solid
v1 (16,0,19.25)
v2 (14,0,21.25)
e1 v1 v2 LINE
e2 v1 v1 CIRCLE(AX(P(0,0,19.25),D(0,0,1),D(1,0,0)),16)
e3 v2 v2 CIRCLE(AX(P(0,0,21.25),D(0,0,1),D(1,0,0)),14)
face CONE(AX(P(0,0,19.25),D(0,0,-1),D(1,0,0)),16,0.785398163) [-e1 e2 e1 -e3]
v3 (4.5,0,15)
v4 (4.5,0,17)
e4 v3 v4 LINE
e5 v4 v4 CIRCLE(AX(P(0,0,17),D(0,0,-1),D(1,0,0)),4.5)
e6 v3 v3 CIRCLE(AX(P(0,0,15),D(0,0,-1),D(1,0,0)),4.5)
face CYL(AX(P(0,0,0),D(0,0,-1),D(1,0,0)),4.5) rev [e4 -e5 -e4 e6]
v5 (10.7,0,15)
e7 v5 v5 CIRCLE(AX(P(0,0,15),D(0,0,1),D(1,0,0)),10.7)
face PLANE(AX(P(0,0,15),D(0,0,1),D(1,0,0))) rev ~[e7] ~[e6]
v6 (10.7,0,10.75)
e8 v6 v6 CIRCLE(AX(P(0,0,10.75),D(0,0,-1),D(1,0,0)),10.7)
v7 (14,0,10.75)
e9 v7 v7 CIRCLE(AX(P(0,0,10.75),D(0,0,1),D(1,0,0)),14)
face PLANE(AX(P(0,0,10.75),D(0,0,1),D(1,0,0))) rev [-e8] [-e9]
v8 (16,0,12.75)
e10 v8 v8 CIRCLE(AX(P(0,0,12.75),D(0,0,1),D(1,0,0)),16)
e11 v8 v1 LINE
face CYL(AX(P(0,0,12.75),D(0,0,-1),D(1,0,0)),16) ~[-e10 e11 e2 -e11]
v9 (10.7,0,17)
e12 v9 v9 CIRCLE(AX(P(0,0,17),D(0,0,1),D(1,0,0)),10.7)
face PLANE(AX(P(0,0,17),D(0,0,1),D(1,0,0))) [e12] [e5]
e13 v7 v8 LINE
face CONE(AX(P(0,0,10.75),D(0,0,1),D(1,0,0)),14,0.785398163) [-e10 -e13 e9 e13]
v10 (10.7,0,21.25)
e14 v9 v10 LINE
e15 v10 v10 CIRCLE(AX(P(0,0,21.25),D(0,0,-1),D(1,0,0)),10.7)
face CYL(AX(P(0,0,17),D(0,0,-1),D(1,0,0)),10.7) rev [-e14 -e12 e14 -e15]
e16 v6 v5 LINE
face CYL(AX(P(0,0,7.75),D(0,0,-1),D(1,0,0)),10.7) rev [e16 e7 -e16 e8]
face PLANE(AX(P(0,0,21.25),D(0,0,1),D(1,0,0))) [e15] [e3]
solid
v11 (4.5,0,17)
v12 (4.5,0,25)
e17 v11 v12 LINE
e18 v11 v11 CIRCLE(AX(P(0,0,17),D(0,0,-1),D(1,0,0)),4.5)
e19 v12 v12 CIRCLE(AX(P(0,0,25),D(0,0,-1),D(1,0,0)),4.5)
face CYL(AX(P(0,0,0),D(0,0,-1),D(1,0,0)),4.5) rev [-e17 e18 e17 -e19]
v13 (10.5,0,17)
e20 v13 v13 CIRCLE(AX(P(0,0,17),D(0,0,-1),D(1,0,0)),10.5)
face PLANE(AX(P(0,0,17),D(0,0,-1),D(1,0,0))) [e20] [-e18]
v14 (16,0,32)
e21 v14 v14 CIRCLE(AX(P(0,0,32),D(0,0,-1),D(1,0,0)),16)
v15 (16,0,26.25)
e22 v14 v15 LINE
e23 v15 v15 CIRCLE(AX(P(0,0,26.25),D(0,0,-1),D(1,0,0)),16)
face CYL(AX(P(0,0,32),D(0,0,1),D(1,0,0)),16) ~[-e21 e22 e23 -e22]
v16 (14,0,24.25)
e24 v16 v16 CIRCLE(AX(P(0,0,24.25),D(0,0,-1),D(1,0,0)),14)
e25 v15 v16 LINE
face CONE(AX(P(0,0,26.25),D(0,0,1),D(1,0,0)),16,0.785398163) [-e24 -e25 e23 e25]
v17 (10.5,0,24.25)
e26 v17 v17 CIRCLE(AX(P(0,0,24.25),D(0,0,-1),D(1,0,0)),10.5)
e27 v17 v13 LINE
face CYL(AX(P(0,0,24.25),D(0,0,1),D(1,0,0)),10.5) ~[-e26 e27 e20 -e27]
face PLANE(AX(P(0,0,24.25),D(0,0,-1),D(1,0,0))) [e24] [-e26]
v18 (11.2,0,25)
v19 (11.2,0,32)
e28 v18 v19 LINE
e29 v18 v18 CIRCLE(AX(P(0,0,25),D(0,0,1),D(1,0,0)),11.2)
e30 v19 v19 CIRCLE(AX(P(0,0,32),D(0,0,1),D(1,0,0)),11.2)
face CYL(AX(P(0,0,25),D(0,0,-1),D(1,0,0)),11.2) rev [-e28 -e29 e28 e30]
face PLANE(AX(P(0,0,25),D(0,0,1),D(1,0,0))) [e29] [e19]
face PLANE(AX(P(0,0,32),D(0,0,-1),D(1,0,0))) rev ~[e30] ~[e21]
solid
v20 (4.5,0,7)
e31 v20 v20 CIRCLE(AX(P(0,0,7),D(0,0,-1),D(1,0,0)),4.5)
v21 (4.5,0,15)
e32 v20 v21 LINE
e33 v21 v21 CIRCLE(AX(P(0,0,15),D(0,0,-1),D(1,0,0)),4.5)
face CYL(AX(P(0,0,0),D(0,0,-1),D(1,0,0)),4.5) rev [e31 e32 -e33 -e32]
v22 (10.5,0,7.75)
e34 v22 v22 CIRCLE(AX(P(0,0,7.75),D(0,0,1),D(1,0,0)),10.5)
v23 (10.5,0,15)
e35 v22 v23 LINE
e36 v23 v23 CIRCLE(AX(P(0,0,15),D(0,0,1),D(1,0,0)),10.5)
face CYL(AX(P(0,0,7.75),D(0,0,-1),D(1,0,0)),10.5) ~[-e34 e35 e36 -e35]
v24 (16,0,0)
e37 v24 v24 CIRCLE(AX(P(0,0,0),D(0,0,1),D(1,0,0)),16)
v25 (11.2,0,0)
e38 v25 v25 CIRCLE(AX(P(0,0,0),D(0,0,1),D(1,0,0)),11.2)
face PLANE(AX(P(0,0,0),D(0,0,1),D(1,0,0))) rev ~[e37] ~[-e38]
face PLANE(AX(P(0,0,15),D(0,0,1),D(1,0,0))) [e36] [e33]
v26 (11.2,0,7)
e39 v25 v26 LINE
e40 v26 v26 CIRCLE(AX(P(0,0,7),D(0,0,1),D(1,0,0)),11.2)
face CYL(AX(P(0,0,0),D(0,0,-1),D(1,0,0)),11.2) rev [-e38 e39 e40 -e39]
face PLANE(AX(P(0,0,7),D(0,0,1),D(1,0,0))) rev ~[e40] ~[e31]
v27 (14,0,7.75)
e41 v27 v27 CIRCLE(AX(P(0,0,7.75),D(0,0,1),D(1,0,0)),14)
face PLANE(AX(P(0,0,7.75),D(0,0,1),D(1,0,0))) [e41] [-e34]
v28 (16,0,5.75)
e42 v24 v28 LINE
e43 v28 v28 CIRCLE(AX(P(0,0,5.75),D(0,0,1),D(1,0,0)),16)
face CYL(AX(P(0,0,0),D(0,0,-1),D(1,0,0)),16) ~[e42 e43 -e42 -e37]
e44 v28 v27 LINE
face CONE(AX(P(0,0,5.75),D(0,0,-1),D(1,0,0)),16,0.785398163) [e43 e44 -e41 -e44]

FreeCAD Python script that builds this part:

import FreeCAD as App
import Part
import Sketcher

V = App.Vector

doc = App.newDocument("Part")
params = doc.addObject("Spreadsheet::Sheet", "Params")
for row, (alias, value) in enumerate([
    ("sketch1_diameter", "21.4 mm"),
    ("pad1_length", "7.25 mm"),
    ("sketch2_diameter", "9 mm"),
    ("pad2_length", "32 mm"),
    ("sketch3_diameter", "21.4 mm"),
    ("pad3_length", "7.25 mm"),
    ("sketch4_width", "16 mm"),
    ("sketch4_width2", "14 mm"),
    ("sketch4_height", "2 mm"),
    ("revolution_angle", "360 deg"),
    ("sketch5_width", "14 mm"),
    ("sketch5_width2", "16 mm"),
    ("sketch5_height", "2 mm"),
    ("revolution2_angle", "360 deg"),
    ("sketch6_diameter", "32 mm"),
    ("pad4_length", "6.5 mm"),
    ("sketch7_diameter", "22.4 mm"),
    ("pad5_length", "7 mm"),
    ("sketch8_diameter", "9 mm"),
    ("pad6_length", "32 mm"),
    ("sketch9_width", "16 mm"),
    ("sketch9_width2", "14 mm"),
    ("sketch9_height", "2 mm"),
    ("revolution3_angle", "360 deg"),
    ("sketch10_diameter", "21 mm"),
    ("pad7_length", "7.25 mm"),
    ("sketch11_diameter", "32 mm"),
    ("pad8_length", "5.75 mm"),
    ("sketch12_diameter", "22.4 mm"),
    ("pad9_length", "7 mm"),
    ("sketch13_diameter", "9 mm"),
    ("pad10_length", "32 mm"),
    ("sketch14_width", "16 mm"),
    ("sketch14_width2", "14 mm"),
    ("sketch14_height", "2 mm"),
    ("revolution4_angle", "360 deg"),
    ("sketch15_diameter", "21 mm"),
    ("pad11_length", "7.25 mm"),
    ("sketch16_diameter", "32 mm"),
    ("pad12_length", "5.75 mm"),
], start=1):
    params.set(f"A{row}", alias)
    params.set(f"B{row}", "=" + value)
    params.setAlias(f"B{row}", alias)

body = doc.addObject("PartDesign::Body", "Body")

# Sketch on XY plane
sketch1 = body.newObject("Sketcher::SketchObject", "Sketch")
sketch1.AttachmentSupport = (doc.getObject("XY_Plane"), [""])
sketch1.MapMode = "FlatFace"
sketch1.AttachmentOffset = App.Placement(V(0, 0, 7.75), App.Rotation())
sketch1.addGeometry(Part.Circle(V(0, 0, 0), V(0, 0, 1), 11), False)
sketch1.addConstraint([
    Sketcher.Constraint("Coincident", 0, 3, -1, 1),
    Sketcher.Constraint("Diameter", 0, 21.4),
])
sketch1.setExpression("Constraints[1]", "Params.sketch1_diameter")
pad1 = body.newObject("PartDesign::Pad", "Pad")
pad1.Profile = sketch1
pad1.setExpression("Length", "Params.pad1_length")
body2 = doc.addObject("PartDesign::Body", "Body001")

# Sketch on XY plane
sketch2 = body2.newObject("Sketcher::SketchObject", "Sketch001")
sketch2.AttachmentSupport = (doc.getObject("XY_Plane001"), [""])
sketch2.MapMode = "FlatFace"
sketch2.addGeometry(Part.Circle(V(0, 0, 0), V(0, 0, 1), 4.5), False)
sketch2.addConstraint([
    Sketcher.Constraint("Coincident", 0, 3, -1, 1),
    Sketcher.Constraint("Diameter", 0, 9.0),
])
sketch2.setExpression("Constraints[1]", "Params.sketch2_diameter")
pad2 = body2.newObject("PartDesign::Pad", "Pad001")
pad2.Profile = sketch2
pad2.setExpression("Length", "Params.pad2_length")
body3 = doc.addObject("PartDesign::Body", "Body002")
body3.AllowCompound = True

# Sketch on XY plane
sketch3 = body3.newObject("Sketcher::SketchObject", "Sketch002")
sketch3.AttachmentSupport = (doc.getObject("XY_Plane002"), [""])
sketch3.MapMode = "FlatFace"
sketch3.AttachmentOffset = App.Placement(V(0, 0, 17), App.Rotation())
sketch3.addGeometry(Part.Circle(V(0, 0, 0), V(0, 0, 1), 11), False)
sketch3.addConstraint([
    Sketcher.Constraint("Coincident", 0, 3, -1, 1),
    Sketcher.Constraint("Diameter", 0, 21.4),
])
sketch3.setExpression("Constraints[1]", "Params.sketch3_diameter")
pad3 = body3.newObject("PartDesign::Pad", "Pad002")
pad3.Profile = sketch3
pad3.setExpression("Length", "Params.pad3_length")
doc.recompute()

boolean = body3.newObject("PartDesign::Boolean", "Boolean")
boolean.Type = "Fuse"
boolean.addObjects([body])
doc.recompute()

boolean2 = body3.newObject("PartDesign::Boolean", "Boolean001")
boolean2.Type = "Fuse"
boolean2.addObjects([body2])
body4 = doc.addObject("PartDesign::Body", "Body003")

# Sketch on XZ plane
sketch4 = body4.newObject("Sketcher::SketchObject", "Sketch003")
sketch4.AttachmentSupport = (doc.getObject("XZ_Plane003"), [""])
sketch4.MapMode = "FlatFace"
sketch4.addGeometry([
    Part.LineSegment(V(0, 8.5, 0), V(16, 8.5, 0)),
    Part.LineSegment(V(16, 8.5, 0), V(14, 10.5, 0)),
    Part.LineSegment(V(14, 10.5, 0), V(0, 10.5, 0)),
    Part.LineSegment(V(0, 10.5, 0), V(0, 8.5, 0)),
], False)
sketch4.addConstraint([
    Sketcher.Constraint("Coincident", 0, 2, 1, 1),
    Sketcher.Constraint("Coincident", 1, 2, 2, 1),
    Sketcher.Constraint("Coincident", 2, 2, 3, 1),
    Sketcher.Constraint("Coincident", 3, 2, 0, 1),
    Sketcher.Constraint("Horizontal", 0),
    Sketcher.Constraint("Horizontal", 2),
    Sketcher.Constraint("Vertical", 3),
    Sketcher.Constraint("PointOnObject", 2, 2, -2),
    Sketcher.Constraint("DistanceX", 0, 1, 0, 2, 16.0),
    Sketcher.Constraint("DistanceX", 2, 2, 2, 1, 14.0),
    Sketcher.Constraint("DistanceY", 3, 2, 3, 1, 2.0),
    Sketcher.Constraint("DistanceY", -1, 1, 0, 2, 8.5),
])
sketch4.setExpression("Constraints[8]", "Params.sketch4_width")
sketch4.setExpression("Constraints[9]", "Params.sketch4_width2")
sketch4.setExpression("Constraints[10]", "Params.sketch4_height")
revolution = body4.newObject("PartDesign::Revolution", "Revolution")
revolution.Profile = sketch4
revolution.ReferenceAxis = (sketch4, ["V_Axis"])
revolution.setExpression("Angle", "Params.revolution_angle")
body5 = doc.addObject("PartDesign::Body", "Body004")

# Sketch on XZ plane
sketch5 = body5.newObject("Sketcher::SketchObject", "Sketch004")
sketch5.AttachmentSupport = (doc.getObject("XZ_Plane004"), [""])
sketch5.MapMode = "FlatFace"
sketch5.addGeometry([
    Part.LineSegment(V(0, 0, 0), V(14, 0, 0)),
    Part.LineSegment(V(14, 0, 0), V(16, 2, 0)),
    Part.LineSegment(V(16, 2, 0), V(0, 2, 0)),
    Part.LineSegment(V(0, 2, 0), V(0, 0, 0)),
], False)
sketch5.addConstraint([
    Sketcher.Constraint("Coincident", 0, 2, 1, 1),
    Sketcher.Constraint("Coincident", 1, 2, 2, 1),
    Sketcher.Constraint("Coincident", 2, 2, 3, 1),
    Sketcher.Constraint("Coincident", 3, 2, 0, 1),
    Sketcher.Constraint("Horizontal", 0),
    Sketcher.Constraint("Horizontal", 2),
    Sketcher.Constraint("Vertical", 3),
    Sketcher.Constraint("Coincident", 3, 2, -1, 1),
    Sketcher.Constraint("DistanceX", 0, 1, 0, 2, 14.0),
    Sketcher.Constraint("DistanceX", 2, 2, 2, 1, 16.0),
    Sketcher.Constraint("DistanceY", 3, 2, 3, 1, 2.0),
])
sketch5.setExpression("Constraints[8]", "Params.sketch5_width")
sketch5.setExpression("Constraints[9]", "Params.sketch5_width2")
sketch5.setExpression("Constraints[10]", "Params.sketch5_height")
revolution2 = body5.newObject("PartDesign::Revolution", "Revolution001")
revolution2.Profile = sketch5
revolution2.ReferenceAxis = (sketch5, ["V_Axis"])
revolution2.setExpression("Angle", "Params.revolution2_angle")
body6 = doc.addObject("PartDesign::Body", "Body005")

# Sketch on XY plane
sketch6 = body6.newObject("Sketcher::SketchObject", "Sketch005")
sketch6.AttachmentSupport = (doc.getObject("XY_Plane005"), [""])
sketch6.MapMode = "FlatFace"
sketch6.AttachmentOffset = App.Placement(V(0, 0, 2), App.Rotation())
sketch6.addGeometry(Part.Circle(V(0, 0, 0), V(0, 0, 1), 16), False)
sketch6.addConstraint([
    Sketcher.Constraint("Coincident", 0, 3, -1, 1),
    Sketcher.Constraint("Diameter", 0, 32.0),
])
sketch6.setExpression("Constraints[1]", "Params.sketch6_diameter")
pad4 = body6.newObject("PartDesign::Pad", "Pad003")
pad4.Profile = sketch6
pad4.setExpression("Length", "Params.pad4_length")
doc.recompute()

boolean3 = body6.newObject("PartDesign::Boolean", "Boolean002")
boolean3.Type = "Fuse"
boolean3.addObjects([body4])
doc.recompute()

boolean4 = body6.newObject("PartDesign::Boolean", "Boolean003")
boolean4.Type = "Fuse"
boolean4.addObjects([body5])
body7 = doc.addObject("PartDesign::Body", "Body006")
doc.recompute()

body6.Placement = App.Placement(V(0, 0, 10.75), App.Rotation(V(0, 0, 1), 0))
boolean5 = body7.newObject("PartDesign::Boolean", "Boolean004")
boolean5.Type = "Fuse"
boolean5.addObjects([body6])
doc.recompute()

boolean6 = body7.newObject("PartDesign::Boolean", "Boolean005")
boolean6.Type = "Cut"
boolean6.addObjects([body3])
body8 = doc.addObject("PartDesign::Body", "Body007")

# Sketch on XY plane
sketch7 = body8.newObject("Sketcher::SketchObject", "Sketch006")
sketch7.AttachmentSupport = (doc.getObject("XY_Plane007"), [""])
sketch7.MapMode = "FlatFace"
sketch7.addGeometry(Part.Circle(V(0, 0, 0), V(0, 0, 1), 11), False)
sketch7.addConstraint([
    Sketcher.Constraint("Coincident", 0, 3, -1, 1),
    Sketcher.Constraint("Diameter", 0, 22.4),
])
sketch7.setExpression("Constraints[1]", "Params.sketch7_diameter")
pad5 = body8.newObject("PartDesign::Pad", "Pad004")
pad5.Profile = sketch7
pad5.setExpression("Length", "Params.pad5_length")
body9 = doc.addObject("PartDesign::Body", "Body008")

# Sketch on XY plane
sketch8 = body9.newObject("Sketcher::SketchObject", "Sketch007")
sketch8.AttachmentSupport = (doc.getObject("XY_Plane008"), [""])
sketch8.MapMode = "FlatFace"
sketch8.addGeometry(Part.Circle(V(0, 0, 0), V(0, 0, 1), 4.5), False)
sketch8.addConstraint([
    Sketcher.Constraint("Coincident", 0, 3, -1, 1),
    Sketcher.Constraint("Diameter", 0, 9.0),
])
sketch8.setExpression("Constraints[1]", "Params.sketch8_diameter")
pad6 = body9.newObject("PartDesign::Pad", "Pad005")
pad6.Profile = sketch8
pad6.setExpression("Length", "Params.pad6_length")
body10 = doc.addObject("PartDesign::Body", "Body009")

# Sketch on XZ plane
sketch9 = body10.newObject("Sketcher::SketchObject", "Sketch008")
sketch9.AttachmentSupport = (doc.getObject("XZ_Plane009"), [""])
sketch9.MapMode = "FlatFace"
sketch9.addGeometry([
    Part.LineSegment(V(0, 5.8, 0), V(16, 5.8, 0)),
    Part.LineSegment(V(16, 5.8, 0), V(14, 7.8, 0)),
    Part.LineSegment(V(14, 7.8, 0), V(0, 7.8, 0)),
    Part.LineSegment(V(0, 7.8, 0), V(0, 5.8, 0)),
], False)
sketch9.addConstraint([
    Sketcher.Constraint("Coincident", 0, 2, 1, 1),
    Sketcher.Constraint("Coincident", 1, 2, 2, 1),
    Sketcher.Constraint("Coincident", 2, 2, 3, 1),
    Sketcher.Constraint("Coincident", 3, 2, 0, 1),
    Sketcher.Constraint("Horizontal", 0),
    Sketcher.Constraint("Horizontal", 2),
    Sketcher.Constraint("Vertical", 3),
    Sketcher.Constraint("PointOnObject", 2, 2, -2),
    Sketcher.Constraint("DistanceX", 0, 1, 0, 2, 16.0),
    Sketcher.Constraint("DistanceX", 2, 2, 2, 1, 14.0),
    Sketcher.Constraint("DistanceY", 3, 2, 3, 1, 2.0),
    Sketcher.Constraint("DistanceY", -1, 1, 0, 2, 5.75),
])
sketch9.setExpression("Constraints[8]", "Params.sketch9_width")
sketch9.setExpression("Constraints[9]", "Params.sketch9_width2")
sketch9.setExpression("Constraints[10]", "Params.sketch9_height")
revolution3 = body10.newObject("PartDesign::Revolution", "Revolution002")
revolution3.Profile = sketch9
revolution3.ReferenceAxis = (sketch9, ["V_Axis"])
revolution3.setExpression("Angle", "Params.revolution3_angle")
body11 = doc.addObject("PartDesign::Body", "Body010")

# Sketch on XY plane
sketch10 = body11.newObject("Sketcher::SketchObject", "Sketch009")
sketch10.AttachmentSupport = (doc.getObject("XY_Plane010"), [""])
sketch10.MapMode = "FlatFace"
sketch10.AttachmentOffset = App.Placement(V(0, 0, 7.75), App.Rotation())
sketch10.addGeometry(Part.Circle(V(0, 0, 0), V(0, 0, 1), 10), False)
sketch10.addConstraint([
    Sketcher.Constraint("Coincident", 0, 3, -1, 1),
    Sketcher.Constraint("Diameter", 0, 21.0),
])
sketch10.setExpression("Constraints[1]", "Params.sketch10_diameter")
pad7 = body11.newObject("PartDesign::Pad", "Pad006")
pad7.Profile = sketch10
pad7.setExpression("Length", "Params.pad7_length")
body12 = doc.addObject("PartDesign::Body", "Body011")

# Sketch on XY plane
sketch11 = body12.newObject("Sketcher::SketchObject", "Sketch010")
sketch11.AttachmentSupport = (doc.getObject("XY_Plane011"), [""])
sketch11.MapMode = "FlatFace"
sketch11.addGeometry(Part.Circle(V(0, 0, 0), V(0, 0, 1), 16), False)
sketch11.addConstraint([
    Sketcher.Constraint("Coincident", 0, 3, -1, 1),
    Sketcher.Constraint("Diameter", 0, 32.0),
])
sketch11.setExpression("Constraints[1]", "Params.sketch11_diameter")
pad8 = body12.newObject("PartDesign::Pad", "Pad007")
pad8.Profile = sketch11
pad8.setExpression("Length", "Params.pad8_length")
doc.recompute()

boolean7 = body12.newObject("PartDesign::Boolean", "Boolean006")
boolean7.Type = "Fuse"
boolean7.addObjects([body10])
doc.recompute()

boolean8 = body12.newObject("PartDesign::Boolean", "Boolean007")
boolean8.Type = "Fuse"
boolean8.addObjects([body11])
doc.recompute()

boolean9 = body12.newObject("PartDesign::Boolean", "Boolean008")
boolean9.Type = "Cut"
boolean9.addObjects([body9])
doc.recompute()

boolean10 = body12.newObject("PartDesign::Boolean", "Boolean009")
boolean10.Type = "Cut"
boolean10.addObjects([body8])
body13 = doc.addObject("PartDesign::Body", "Body012")

# Sketch on XY plane
sketch12 = body13.newObject("Sketcher::SketchObject", "Sketch011")
sketch12.AttachmentSupport = (doc.getObject("XY_Plane012"), [""])
sketch12.MapMode = "FlatFace"
sketch12.AttachmentOffset = App.Placement(V(0, 0, 25), App.Rotation())
sketch12.addGeometry(Part.Circle(V(0, 0, 0), V(0, 0, 1), 11), False)
sketch12.addConstraint([
    Sketcher.Constraint("Coincident", 0, 3, -1, 1),
    Sketcher.Constraint("Diameter", 0, 22.4),
])
sketch12.setExpression("Constraints[1]", "Params.sketch12_diameter")
pad9 = body13.newObject("PartDesign::Pad", "Pad008")
pad9.Profile = sketch12
pad9.setExpression("Length", "Params.pad9_length")
body14 = doc.addObject("PartDesign::Body", "Body013")

# Sketch on XY plane
sketch13 = body14.newObject("Sketcher::SketchObject", "Sketch012")
sketch13.AttachmentSupport = (doc.getObject("XY_Plane013"), [""])
sketch13.MapMode = "FlatFace"
sketch13.addGeometry(Part.Circle(V(0, 0, 0), V(0, 0, 1), 4.5), False)
sketch13.addConstraint([
    Sketcher.Constraint("Coincident", 0, 3, -1, 1),
    Sketcher.Constraint("Diameter", 0, 9.0),
])
sketch13.setExpression("Constraints[1]", "Params.sketch13_diameter")
pad10 = body14.newObject("PartDesign::Pad", "Pad009")
pad10.Profile = sketch13
pad10.setExpression("Length", "Params.pad10_length")
body15 = doc.addObject("PartDesign::Body", "Body014")

# Sketch on XZ plane
sketch14 = body15.newObject("Sketcher::SketchObject", "Sketch013")
sketch14.AttachmentSupport = (doc.getObject("XZ_Plane014"), [""])
sketch14.MapMode = "FlatFace"
sketch14.addGeometry([
    Part.LineSegment(V(0, 5.8, 0), V(16, 5.8, 0)),
    Part.LineSegment(V(16, 5.8, 0), V(14, 7.8, 0)),
    Part.LineSegment(V(14, 7.8, 0), V(0, 7.8, 0)),
    Part.LineSegment(V(0, 7.8, 0), V(0, 5.8, 0)),
], False)
sketch14.addConstraint([
    Sketcher.Constraint("Coincident", 0, 2, 1, 1),
    Sketcher.Constraint("Coincident", 1, 2, 2, 1),
    Sketcher.Constraint("Coincident", 2, 2, 3, 1),
    Sketcher.Constraint("Coincident", 3, 2, 0, 1),
    Sketcher.Constraint("Horizontal", 0),
    Sketcher.Constraint("Horizontal", 2),
    Sketcher.Constraint("Vertical", 3),
    Sketcher.Constraint("PointOnObject", 2, 2, -2),
    Sketcher.Constraint("DistanceX", 0, 1, 0, 2, 16.0),
    Sketcher.Constraint("DistanceX", 2, 2, 2, 1, 14.0),
    Sketcher.Constraint("DistanceY", 3, 2, 3, 1, 2.0),
    Sketcher.Constraint("DistanceY", -1, 1, 0, 2, 5.75),
])
sketch14.setExpression("Constraints[8]", "Params.sketch14_width")
sketch14.setExpression("Constraints[9]", "Params.sketch14_width2")
sketch14.setExpression("Constraints[10]", "Params.sketch14_height")
revolution4 = body15.newObject("PartDesign::Revolution", "Revolution003")
revolution4.Profile = sketch14
revolution4.ReferenceAxis = (sketch14, ["V_Axis"])
revolution4.setExpression("Angle", "Params.revolution4_angle")
body16 = doc.addObject("PartDesign::Body", "Body015")

# Sketch on XY plane
sketch15 = body16.newObject("Sketcher::SketchObject", "Sketch014")
sketch15.AttachmentSupport = (doc.getObject("XY_Plane015"), [""])
sketch15.MapMode = "FlatFace"
sketch15.AttachmentOffset = App.Placement(V(0, 0, 7.75), App.Rotation())
sketch15.addGeometry(Part.Circle(V(0, 0, 0), V(0, 0, 1), 10), False)
sketch15.addConstraint([
    Sketcher.Constraint("Coincident", 0, 3, -1, 1),
    Sketcher.Constraint("Diameter", 0, 21.0),
])
sketch15.setExpression("Constraints[1]", "Params.sketch15_diameter")
pad11 = body16.newObject("PartDesign::Pad", "Pad010")
pad11.Profile = sketch15
pad11.setExpression("Length", "Params.pad11_length")
body17 = doc.addObject("PartDesign::Body", "Body016")

# Sketch on XY plane
sketch16 = body17.newObject("Sketcher::SketchObject", "Sketch015")
sketch16.AttachmentSupport = (doc.getObject("XY_Plane016"), [""])
sketch16.MapMode = "FlatFace"
sketch16.addGeometry(Part.Circle(V(0, 0, 0), V(0, 0, 1), 16), False)
sketch16.addConstraint([
    Sketcher.Constraint("Coincident", 0, 3, -1, 1),
    Sketcher.Constraint("Diameter", 0, 32.0),
])
sketch16.setExpression("Constraints[1]", "Params.sketch16_diameter")
pad12 = body17.newObject("PartDesign::Pad", "Pad011")
pad12.Profile = sketch16
pad12.setExpression("Length", "Params.pad12_length")
doc.recompute()

boolean11 = body17.newObject("PartDesign::Boolean", "Boolean010")
boolean11.Type = "Fuse"
boolean11.addObjects([body15])
doc.recompute()

boolean12 = body17.newObject("PartDesign::Boolean", "Boolean011")
boolean12.Type = "Fuse"
boolean12.addObjects([body16])
body18 = doc.addObject("PartDesign::Body", "Body017")
doc.recompute()

body17.Placement = App.Placement(V(0, 0, 32), App.Rotation(V(1, 0, 0), 180))
boolean13 = body18.newObject("PartDesign::Boolean", "Boolean012")
boolean13.Type = "Fuse"
boolean13.addObjects([body17])
doc.recompute()

boolean14 = body18.newObject("PartDesign::Boolean", "Boolean013")
boolean14.Type = "Cut"
boolean14.addObjects([body14])
doc.recompute()

boolean15 = body18.newObject("PartDesign::Boolean", "Boolean014")
boolean15.Type = "Cut"
boolean15.addObjects([body13])

doc.recompute()
